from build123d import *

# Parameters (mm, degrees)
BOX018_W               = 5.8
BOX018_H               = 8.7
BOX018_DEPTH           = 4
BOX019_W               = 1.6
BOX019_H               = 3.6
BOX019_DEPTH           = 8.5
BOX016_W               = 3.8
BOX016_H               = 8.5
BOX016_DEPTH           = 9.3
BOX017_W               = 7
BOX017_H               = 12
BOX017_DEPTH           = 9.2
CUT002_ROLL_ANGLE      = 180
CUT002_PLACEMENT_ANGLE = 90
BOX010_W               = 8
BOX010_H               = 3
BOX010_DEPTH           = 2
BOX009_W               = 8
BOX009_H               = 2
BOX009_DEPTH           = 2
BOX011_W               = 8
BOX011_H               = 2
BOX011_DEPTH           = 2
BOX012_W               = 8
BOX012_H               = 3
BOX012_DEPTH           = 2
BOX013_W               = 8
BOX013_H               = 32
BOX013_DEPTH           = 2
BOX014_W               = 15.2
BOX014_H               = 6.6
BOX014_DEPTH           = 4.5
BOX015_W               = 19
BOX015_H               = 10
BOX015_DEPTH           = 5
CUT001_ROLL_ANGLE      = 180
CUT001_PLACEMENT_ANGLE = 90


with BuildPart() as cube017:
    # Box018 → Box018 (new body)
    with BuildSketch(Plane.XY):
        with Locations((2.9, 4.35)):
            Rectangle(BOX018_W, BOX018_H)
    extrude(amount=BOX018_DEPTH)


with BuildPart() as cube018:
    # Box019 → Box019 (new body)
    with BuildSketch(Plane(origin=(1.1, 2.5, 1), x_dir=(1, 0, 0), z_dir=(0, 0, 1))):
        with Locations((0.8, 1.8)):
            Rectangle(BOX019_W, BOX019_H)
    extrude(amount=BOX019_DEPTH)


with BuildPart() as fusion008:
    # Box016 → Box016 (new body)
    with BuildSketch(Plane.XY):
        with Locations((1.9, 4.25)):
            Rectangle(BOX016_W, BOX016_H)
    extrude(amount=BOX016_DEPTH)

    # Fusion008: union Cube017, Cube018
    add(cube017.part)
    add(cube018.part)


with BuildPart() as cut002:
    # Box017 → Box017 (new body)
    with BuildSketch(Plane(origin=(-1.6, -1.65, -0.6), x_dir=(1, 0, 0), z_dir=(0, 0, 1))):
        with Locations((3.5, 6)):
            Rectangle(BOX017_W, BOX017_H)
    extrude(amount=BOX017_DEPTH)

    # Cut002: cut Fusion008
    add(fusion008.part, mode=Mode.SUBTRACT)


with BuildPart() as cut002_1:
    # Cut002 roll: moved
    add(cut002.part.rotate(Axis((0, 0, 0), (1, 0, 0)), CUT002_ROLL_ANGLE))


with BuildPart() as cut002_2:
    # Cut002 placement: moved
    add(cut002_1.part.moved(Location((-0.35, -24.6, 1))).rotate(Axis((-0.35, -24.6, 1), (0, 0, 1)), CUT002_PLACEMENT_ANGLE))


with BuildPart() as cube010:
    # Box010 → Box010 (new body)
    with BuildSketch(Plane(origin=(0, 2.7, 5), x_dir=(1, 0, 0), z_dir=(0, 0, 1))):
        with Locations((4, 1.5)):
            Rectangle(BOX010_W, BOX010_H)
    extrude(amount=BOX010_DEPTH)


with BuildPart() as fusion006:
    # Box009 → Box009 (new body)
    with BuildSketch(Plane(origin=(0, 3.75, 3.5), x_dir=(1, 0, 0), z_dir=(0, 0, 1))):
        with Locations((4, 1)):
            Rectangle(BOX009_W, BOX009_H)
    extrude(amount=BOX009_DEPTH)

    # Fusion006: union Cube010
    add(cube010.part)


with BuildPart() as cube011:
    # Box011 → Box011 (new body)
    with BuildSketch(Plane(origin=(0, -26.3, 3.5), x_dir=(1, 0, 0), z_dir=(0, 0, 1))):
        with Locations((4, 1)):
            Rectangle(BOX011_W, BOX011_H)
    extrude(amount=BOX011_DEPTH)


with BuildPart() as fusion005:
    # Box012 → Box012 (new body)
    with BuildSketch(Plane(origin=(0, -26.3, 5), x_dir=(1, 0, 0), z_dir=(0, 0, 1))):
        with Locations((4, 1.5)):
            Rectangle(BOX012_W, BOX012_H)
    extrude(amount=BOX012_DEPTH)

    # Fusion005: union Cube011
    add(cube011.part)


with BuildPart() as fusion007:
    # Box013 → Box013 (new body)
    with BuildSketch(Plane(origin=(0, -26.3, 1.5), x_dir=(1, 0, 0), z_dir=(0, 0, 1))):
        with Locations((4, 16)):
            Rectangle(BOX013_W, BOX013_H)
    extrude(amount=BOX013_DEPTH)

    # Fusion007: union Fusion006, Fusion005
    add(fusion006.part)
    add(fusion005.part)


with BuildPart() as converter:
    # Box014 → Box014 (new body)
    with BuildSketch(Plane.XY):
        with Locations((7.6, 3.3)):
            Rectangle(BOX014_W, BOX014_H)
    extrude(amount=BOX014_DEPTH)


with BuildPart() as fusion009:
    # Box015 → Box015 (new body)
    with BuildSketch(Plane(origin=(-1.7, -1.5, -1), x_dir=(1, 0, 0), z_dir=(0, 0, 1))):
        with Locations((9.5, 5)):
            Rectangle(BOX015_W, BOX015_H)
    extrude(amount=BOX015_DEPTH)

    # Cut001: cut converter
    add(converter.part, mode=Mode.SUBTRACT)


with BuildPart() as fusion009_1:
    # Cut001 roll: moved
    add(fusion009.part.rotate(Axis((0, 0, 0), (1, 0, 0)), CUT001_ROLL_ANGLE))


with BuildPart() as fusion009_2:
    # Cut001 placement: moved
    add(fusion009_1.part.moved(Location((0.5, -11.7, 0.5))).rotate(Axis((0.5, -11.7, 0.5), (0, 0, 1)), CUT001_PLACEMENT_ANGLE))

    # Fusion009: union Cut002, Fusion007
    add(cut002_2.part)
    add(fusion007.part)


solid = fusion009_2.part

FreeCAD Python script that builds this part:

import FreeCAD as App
import Part
import Sketcher
from FreeCAD import Vector


def add_polygon(sketch, points):
    """Adds a closed chain of lines whose ends are joined by coincident constraints."""
    first, n = sketch.GeometryCount, len(points)
    for a, b in zip(points, points[1:] + points[:1]):
        sketch.addGeometry(Part.LineSegment(App.Vector(*a, 0), App.Vector(*b, 0)), False)
    for i in range(n):
        sketch.addConstraint(Sketcher.Constraint("Coincident", first + i, 2, first + (i + 1) % n, 1))

doc = App.newDocument("Part")
body = doc.addObject("PartDesign::Body", "Body")

# Sketch on XY plane
sketch1 = body.newObject("Sketcher::SketchObject", "Sketch")
sketch1.AttachmentSupport = (doc.getObject("XY_Plane"), [""])
sketch1.MapMode = "FlatFace"
add_polygon(sketch1, [(0, 9), (0, 0), (6, 0), (6, 9)])  # lines 0-3
sketch1.addConstraint(Sketcher.Constraint("Vertical", 0))
sketch1.addConstraint(Sketcher.Constraint("Horizontal", 1))
sketch1.addConstraint(Sketcher.Constraint("Vertical", 2))
sketch1.addConstraint(Sketcher.Constraint("Horizontal", 3))
sketch1.addConstraint(Sketcher.Constraint("Coincident", 0, 2, -1, 1))
sketch1.addConstraint(Sketcher.Constraint("DistanceX", 1, 1, 1, 2, 5.8))
sketch1.addConstraint(Sketcher.Constraint("DistanceY", 0, 2, 0, 1, 8.7))
pad1 = body.newObject("PartDesign::Pad", "Pad")
pad1.Profile = sketch1
pad1.Length = 4
body2 = doc.addObject("PartDesign::Body", "Body001")

# Sketch on XY plane
sketch2 = body2.newObject("Sketcher::SketchObject", "Sketch001")
sketch2.AttachmentSupport = (doc.getObject("XY_Plane001"), [""])
sketch2.MapMode = "FlatFace"
sketch2.AttachmentOffset = App.Placement(Vector(0, 0, 1), App.Rotation())
add_polygon(sketch2, [(1.1, 6.1), (1.1, 2.5), (2.7, 2.5), (2.7, 6.1)])  # lines 0-3
sketch2.addConstraint(Sketcher.Constraint("Vertical", 0))
sketch2.addConstraint(Sketcher.Constraint("Horizontal", 1))
sketch2.addConstraint(Sketcher.Constraint("Vertical", 2))
sketch2.addConstraint(Sketcher.Constraint("Horizontal", 3))
sketch2.addConstraint(Sketcher.Constraint("DistanceX", 1, 1, 1, 2, 1.6))
sketch2.addConstraint(Sketcher.Constraint("DistanceY", 0, 2, 0, 1, 3.6))
sketch2.addConstraint(Sketcher.Constraint("DistanceX", -1, 1, 0, 2, 1.1))
sketch2.addConstraint(Sketcher.Constraint("DistanceY", -1, 1, 0, 2, 2.5))
pad2 = body2.newObject("PartDesign::Pad", "Pad001")
pad2.Profile = sketch2
pad2.Length = 8.5
body3 = doc.addObject("PartDesign::Body", "Body002")

# Sketch on XY plane
sketch3 = body3.newObject("Sketcher::SketchObject", "Sketch002")
sketch3.AttachmentSupport = (doc.getObject("XY_Plane002"), [""])
sketch3.MapMode = "FlatFace"
add_polygon(sketch3, [(0, 8.5), (0, 0), (3.8, 0), (3.8, 8.5)])  # lines 0-3
sketch3.addConstraint(Sketcher.Constraint("Vertical", 0))
sketch3.addConstraint(Sketcher.Constraint("Horizontal", 1))
sketch3.addConstraint(Sketcher.Constraint("Vertical", 2))
sketch3.addConstraint(Sketcher.Constraint("Horizontal", 3))
sketch3.addConstraint(Sketcher.Constraint("Coincident", 0, 2, -1, 1))
sketch3.addConstraint(Sketcher.Constraint("DistanceX", 1, 1, 1, 2, 3.8))
sketch3.addConstraint(Sketcher.Constraint("DistanceY", 0, 2, 0, 1, 8.5))
pad3 = body3.newObject("PartDesign::Pad", "Pad002")
pad3.Profile = sketch3
pad3.Length = 9.3
doc.recompute()

boolean = body3.newObject("PartDesign::Boolean", "Boolean")
boolean.Type = "Fuse"
boolean.addObjects([body])
doc.recompute()

boolean2 = body3.newObject("PartDesign::Boolean", "Boolean001")
boolean2.Type = "Fuse"
boolean2.addObjects([body2])
body4 = doc.addObject("PartDesign::Body", "Body003")

# Sketch on XY plane
sketch4 = body4.newObject("Sketcher::SketchObject", "Sketch003")
sketch4.AttachmentSupport = (doc.getObject("XY_Plane003"), [""])
sketch4.MapMode = "FlatFace"
sketch4.AttachmentOffset = App.Placement(Vector(0, 0, -0.6), App.Rotation())
add_polygon(sketch4, [(-2, 10), (-2, -2), (5, -2), (5, 10)])  # lines 0-3
sketch4.addConstraint(Sketcher.Constraint("Vertical", 0))
sketch4.addConstraint(Sketcher.Constraint("Horizontal", 1))
sketch4.addConstraint(Sketcher.Constraint("Vertical", 2))
sketch4.addConstraint(Sketcher.Constraint("Horizontal", 3))
sketch4.addConstraint(Sketcher.Constraint("DistanceX", 1, 1, 1, 2, 7.0))
sketch4.addConstraint(Sketcher.Constraint("DistanceY", 0, 2, 0, 1, 12.0))
sketch4.addConstraint(Sketcher.Constraint("DistanceX", 0, 2, -1, 1, 1.6))
sketch4.addConstraint(Sketcher.Constraint("DistanceY", 0, 2, -1, 1, 1.65))
pad4 = body4.newObject("PartDesign::Pad", "Pad003")
pad4.Profile = sketch4
pad4.Length = 9.2
doc.recompute()

boolean3 = body4.newObject("PartDesign::Boolean", "Boolean002")
boolean3.Type = "Cut"
boolean3.addObjects([body3])
body5 = doc.addObject("PartDesign::Body", "Body004")
doc.recompute()

body4.Placement = App.Placement(Vector(0, 0, 0), App.Rotation(Vector(1, 0, 0), 180))
boolean4 = body5.newObject("PartDesign::Boolean", "Boolean003")
boolean4.Type = "Fuse"
boolean4.addObjects([body4])
body6 = doc.addObject("PartDesign::Body", "Body005")
doc.recompute()

body5.Placement = App.Placement(Vector(-0.35, -24.6, 1), App.Rotation(Vector(0, 0, 1), 90))
boolean5 = body6.newObject("PartDesign::Boolean", "Boolean004")
boolean5.Type = "Fuse"
boolean5.addObjects([body5])
body7 = doc.addObject("PartDesign::Body", "Body006")

# Sketch on XY plane
sketch5 = body7.newObject("Sketcher::SketchObject", "Sketch004")
sketch5.AttachmentSupport = (doc.getObject("XY_Plane006"), [""])
sketch5.MapMode = "FlatFace"
sketch5.AttachmentOffset = App.Placement(Vector(0, 0, 5), App.Rotation())
add_polygon(sketch5, [(0, 5.7), (0, 2.7), (8, 2.7), (8, 5.7)])  # lines 0-3
sketch5.addConstraint(Sketcher.Constraint("Vertical", 0))
sketch5.addConstraint(Sketcher.Constraint("Horizontal", 1))
sketch5.addConstraint(Sketcher.Constraint("Vertical", 2))
sketch5.addConstraint(Sketcher.Constraint("Horizontal", 3))
sketch5.addConstraint(Sketcher.Constraint("PointOnObject", 0, 2, -2))
sketch5.addConstraint(Sketcher.Constraint("DistanceX", 1, 1, 1, 2, 8.0))
sketch5.addConstraint(Sketcher.Constraint("DistanceY", 0, 2, 0, 1, 3.0))
sketch5.addConstraint(Sketcher.Constraint("DistanceY", -1, 1, 0, 2, 2.7))
pad5 = body7.newObject("PartDesign::Pad", "Pad004")
pad5.Profile = sketch5
pad5.Length = 2
body8 = doc.addObject("PartDesign::Body", "Body007")

# Sketch on XY plane
sketch6 = body8.newObject("Sketcher::SketchObject", "Sketch005")
sketch6.AttachmentSupport = (doc.getObject("XY_Plane007"), [""])
sketch6.MapMode = "FlatFace"
sketch6.AttachmentOffset = App.Placement(Vector(0, 0, 3.5), App.Rotation())
add_polygon(sketch6, [(0, 5.8), (0, 3.8), (8, 3.8), (8, 5.8)])  # lines 0-3
sketch6.addConstraint(Sketcher.Constraint("Vertical", 0))
sketch6.addConstraint(Sketcher.Constraint("Horizontal", 1))
sketch6.addConstraint(Sketcher.Constraint("Vertical", 2))
sketch6.addConstraint(Sketcher.Constraint("Horizontal", 3))
sketch6.addConstraint(Sketcher.Constraint("PointOnObject", 0, 2, -2))
sketch6.addConstraint(Sketcher.Constraint("DistanceX", 1, 1, 1, 2, 8.0))
sketch6.addConstraint(Sketcher.Constraint("DistanceY", 0, 2, 0, 1, 2.0))
sketch6.addConstraint(Sketcher.Constraint("DistanceY", -1, 1, 0, 2, 3.75))
pad6 = body8.newObject("PartDesign::Pad", "Pad005")
pad6.Profile = sketch6
pad6.Length = 2
doc.recompute()

boolean6 = body8.newObject("PartDesign::Boolean", "Boolean005")
boolean6.Type = "Fuse"
boolean6.addObjects([body7])
body9 = doc.addObject("PartDesign::Body", "Body008")

# Sketch on XY plane
sketch7 = body9.newObject("Sketcher::SketchObject", "Sketch006")
sketch7.AttachmentSupport = (doc.getObject("XY_Plane008"), [""])
sketch7.MapMode = "FlatFace"
sketch7.AttachmentOffset = App.Placement(Vector(0, 0, 3.5), App.Rotation())
add_polygon(sketch7, [(0, -24.3), (0, -26.3), (8, -26.3), (8, -24.3)])  # lines 0-3
sketch7.addConstraint(Sketcher.Constraint("Vertical", 0))
sketch7.addConstraint(Sketcher.Constraint("Horizontal", 1))
sketch7.addConstraint(Sketcher.Constraint("Vertical", 2))
sketch7.addConstraint(Sketcher.Constraint("Horizontal", 3))
sketch7.addConstraint(Sketcher.Constraint("PointOnObject", 0, 2, -2))
sketch7.addConstraint(Sketcher.Constraint("DistanceX", 1, 1, 1, 2, 8.0))
sketch7.addConstraint(Sketcher.Constraint("DistanceY", 0, 2, 0, 1, 2.0))
sketch7.addConstraint(Sketcher.Constraint("DistanceY", 0, 2, -1, 1, 26.3))
pad7 = body9.newObject("PartDesign::Pad", "Pad006")
pad7.Profile = sketch7
pad7.Length = 2
body10 = doc.addObject("PartDesign::Body", "Body009")

# Sketch on XY plane
sketch8 = body10.newObject("Sketcher::SketchObject", "Sketch007")
sketch8.AttachmentSupport = (doc.getObject("XY_Plane009"), [""])
sketch8.MapMode = "FlatFace"
sketch8.AttachmentOffset = App.Placement(Vector(0, 0, 5), App.Rotation())
add_polygon(sketch8, [(0, -23.3), (0, -26.3), (8, -26.3), (8, -23.3)])  # lines 0-3
sketch8.addConstraint(Sketcher.Constraint("Vertical", 0))
sketch8.addConstraint(Sketcher.Constraint("Horizontal", 1))
sketch8.addConstraint(Sketcher.Constraint("Vertical", 2))
sketch8.addConstraint(Sketcher.Constraint("Horizontal", 3))
sketch8.addConstraint(Sketcher.Constraint("PointOnObject", 0, 2, -2))
sketch8.addConstraint(Sketcher.Constraint("DistanceX", 1, 1, 1, 2, 8.0))
sketch8.addConstraint(Sketcher.Constraint("DistanceY", 0, 2, 0, 1, 3.0))
sketch8.addConstraint(Sketcher.Constraint("DistanceY", 0, 2, -1, 1, 26.3))
pad8 = body10.newObject("PartDesign::Pad", "Pad007")
pad8.Profile = sketch8
pad8.Length = 2
doc.recompute()

boolean7 = body10.newObject("PartDesign::Boolean", "Boolean006")
boolean7.Type = "Fuse"
boolean7.addObjects([body9])
body11 = doc.addObject("PartDesign::Body", "Body010")

# Sketch on XY plane
sketch9 = body11.newObject("Sketcher::SketchObject", "Sketch008")
sketch9.AttachmentSupport = (doc.getObject("XY_Plane010"), [""])
sketch9.MapMode = "FlatFace"
sketch9.AttachmentOffset = App.Placement(Vector(0, 0, 1.5), App.Rotation())
add_polygon(sketch9, [(0, 6), (0, -26), (8, -26), (8, 6)])  # lines 0-3
sketch9.addConstraint(Sketcher.Constraint("Vertical", 0))
sketch9.addConstraint(Sketcher.Constraint("Horizontal", 1))
sketch9.addConstraint(Sketcher.Constraint("Vertical", 2))
sketch9.addConstraint(Sketcher.Constraint("Horizontal", 3))
sketch9.addConstraint(Sketcher.Constraint("PointOnObject", 0, 2, -2))
sketch9.addConstraint(Sketcher.Constraint("DistanceX", 1, 1, 1, 2, 8.0))
sketch9.addConstraint(Sketcher.Constraint("DistanceY", 0, 2, 0, 1, 32.0))
sketch9.addConstraint(Sketcher.Constraint("DistanceY", 0, 2, -1, 1, 26.3))
pad9 = body11.newObject("PartDesign::Pad", "Pad008")
pad9.Profile = sketch9
pad9.Length = 2
doc.recompute()

boolean8 = body11.newObject("PartDesign::Boolean", "Boolean007")
boolean8.Type = "Fuse"
boolean8.addObjects([body8])
doc.recompute()

boolean9 = body11.newObject("PartDesign::Boolean", "Boolean008")
boolean9.Type = "Fuse"
boolean9.addObjects([body10])
body12 = doc.addObject("PartDesign::Body", "Body011")

# Sketch on XY plane
sketch10 = body12.newObject("Sketcher::SketchObject", "Sketch009")
sketch10.AttachmentSupport = (doc.getObject("XY_Plane011"), [""])
sketch10.MapMode = "FlatFace"
add_polygon(sketch10, [(0, 7), (0, 0), (15, 0), (15, 7)])  # lines 0-3
sketch10.addConstraint(Sketcher.Constraint("Vertical", 0))
sketch10.addConstraint(Sketcher.Constraint("Horizontal", 1))
sketch10.addConstraint(Sketcher.Constraint("Vertical", 2))
sketch10.addConstraint(Sketcher.Constraint("Horizontal", 3))
sketch10.addConstraint(Sketcher.Constraint("Coincident", 0, 2, -1, 1))
sketch10.addConstraint(Sketcher.Constraint("DistanceX", 1, 1, 1, 2, 15.2))
sketch10.addConstraint(Sketcher.Constraint("DistanceY", 0, 2, 0, 1, 6.6))
pad10 = body12.newObject("PartDesign::Pad", "Pad009")
pad10.Profile = sketch10
pad10.Length = 4.5
body13 = doc.addObject("PartDesign::Body", "Body012")

# Sketch on XY plane
sketch11 = body13.newObject("Sketcher::SketchObject", "Sketch010")
sketch11.AttachmentSupport = (doc.getObject("XY_Plane012"), [""])
sketch11.MapMode = "FlatFace"
sketch11.AttachmentOffset = App.Placement(Vector(0, 0, -1), App.Rotation())
add_polygon(sketch11, [(-2, 8), (-2, -2), (17, -2), (17, 8)])  # lines 0-3
sketch11.addConstraint(Sketcher.Constraint("Vertical", 0))
sketch11.addConstraint(Sketcher.Constraint("Horizontal", 1))
sketch11.addConstraint(Sketcher.Constraint("Vertical", 2))
sketch11.addConstraint(Sketcher.Constraint("Horizontal", 3))
sketch11.addConstraint(Sketcher.Constraint("DistanceX", 1, 1, 1, 2, 19.0))
sketch11.addConstraint(Sketcher.Constraint("DistanceY", 0, 2, 0, 1, 10.0))
sketch11.addConstraint(Sketcher.Constraint("DistanceX", 0, 2, -1, 1, 1.7))
sketch11.addConstraint(Sketcher.Constraint("DistanceY", 0, 2, -1, 1, 1.5))
pad11 = body13.newObject("PartDesign::Pad", "Pad010")
pad11.Profile = sketch11
pad11.Length = 5
doc.recompute()

boolean10 = body13.newObject("PartDesign::Boolean", "Boolean009")
boolean10.Type = "Cut"
boolean10.addObjects([body12])
body14 = doc.addObject("PartDesign::Body", "Body013")
doc.recompute()

body13.Placement = App.Placement(Vector(0, 0, 0), App.Rotation(Vector(1, 0, 0), 180))
boolean11 = body14.newObject("PartDesign::Boolean", "Boolean010")
boolean11.Type = "Fuse"
boolean11.addObjects([body13])
body15 = doc.addObject("PartDesign::Body", "Body014")
body15.AllowCompound = True
doc.recompute()

body14.Placement = App.Placement(Vector(0.5, -11.7, 0.5), App.Rotation(Vector(0, 0, 1), 90))
boolean12 = body15.newObject("PartDesign::Boolean", "Boolean011")
boolean12.Type = "Fuse"
boolean12.addObjects([body14])
doc.recompute()

boolean13 = body15.newObject("PartDesign::Boolean", "Boolean012")
boolean13.Type = "Fuse"
boolean13.addObjects([body6])
doc.recompute()

boolean14 = body15.newObject("PartDesign::Boolean", "Boolean013")
boolean14.Type = "Fuse"
boolean14.addObjects([body11])

doc.recompute()
